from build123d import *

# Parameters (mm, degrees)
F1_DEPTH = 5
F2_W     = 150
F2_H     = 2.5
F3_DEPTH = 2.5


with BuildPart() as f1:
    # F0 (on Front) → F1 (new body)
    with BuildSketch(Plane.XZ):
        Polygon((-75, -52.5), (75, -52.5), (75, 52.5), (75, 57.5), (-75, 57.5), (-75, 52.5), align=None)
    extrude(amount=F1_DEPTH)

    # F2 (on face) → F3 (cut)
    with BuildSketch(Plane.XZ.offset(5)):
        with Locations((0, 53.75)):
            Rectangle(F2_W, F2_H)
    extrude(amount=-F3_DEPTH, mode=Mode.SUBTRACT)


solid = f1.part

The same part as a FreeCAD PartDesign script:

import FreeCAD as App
import Part
import Sketcher

V = App.Vector

doc = App.newDocument("Part")
body = doc.addObject("PartDesign::Body", "Body")

# Sketch on XZ plane
sketch1 = doc.addObject("Sketcher::SketchObject", "Sketch")
body.addObject(sketch1)
sketch1.AttachmentSupport = (doc.XZ_Plane, [""])
sketch1.MapMode = "FlatFace"
sketch1.addGeometry(Part.LineSegment(V(-75, -52.5, 0), V(75, -52.5, 0)), False)
sketch1.addGeometry(Part.LineSegment(V(75, -52.5, 0), V(75, 57.5, 0)), False)
sketch1.addGeometry(Part.LineSegment(V(75, 57.5, 0), V(-75, 57.5, 0)), False)
sketch1.addGeometry(Part.LineSegment(V(-75, 57.5, 0), V(-75, -52.5, 0)), False)
sketch1.addConstraint(Sketcher.Constraint("Coincident", 0, 2, 1, 1))
sketch1.addConstraint(Sketcher.Constraint("Coincident", 1, 2, 2, 1))
sketch1.addConstraint(Sketcher.Constraint("Coincident", 2, 2, 3, 1))
sketch1.addConstraint(Sketcher.Constraint("Coincident", 3, 2, 0, 1))
sketch1.addConstraint(Sketcher.Constraint("Horizontal", 0))
sketch1.addConstraint(Sketcher.Constraint("Vertical", 1))
sketch1.addConstraint(Sketcher.Constraint("Horizontal", 2))
sketch1.addConstraint(Sketcher.Constraint("Vertical", 3))
sketch1.addConstraint(Sketcher.Constraint("DistanceX", 0, 1, 0, 2, 150.0))
sketch1.addConstraint(Sketcher.Constraint("DistanceY", 1, 1, 1, 2, 110.0))
sketch1.addConstraint(Sketcher.Constraint("DistanceX", -1, 1, 0, 2, 75.0))
sketch1.addConstraint(Sketcher.Constraint("DistanceY", 0, 2, -1, 1, 52.5))
pad1 = doc.addObject("PartDesign::Pad", "Pad")
body.addObject(pad1)
pad1.Profile = sketch1
pad1.Length = 5

# Sketch on XZ plane
sketch2 = doc.addObject("Sketcher::SketchObject", "Sketch001")
body.addObject(sketch2)
sketch2.AttachmentSupport = (doc.XZ_Plane, [""])
sketch2.MapMode = "FlatFace"
sketch2.AttachmentOffset = App.Placement(V(0, 0, 5), App.Rotation())
sketch2.addGeometry(Part.LineSegment(V(-75, 55, 0), V(-75, 52.5, 0)), False)
sketch2.addGeometry(Part.LineSegment(V(-75, 52.5, 0), V(75, 52.5, 0)), False)
sketch2.addGeometry(Part.LineSegment(V(75, 52.5, 0), V(75, 55, 0)), False)
sketch2.addGeometry(Part.LineSegment(V(75, 55, 0), V(-75, 55, 0)), False)
sketch2.addConstraint(Sketcher.Constraint("Coincident", 0, 2, 1, 1))
sketch2.addConstraint(Sketcher.Constraint("Coincident", 1, 2, 2, 1))
sketch2.addConstraint(Sketcher.Constraint("Coincident", 2, 2, 3, 1))
sketch2.addConstraint(Sketcher.Constraint("Coincident", 3, 2, 0, 1))
sketch2.addConstraint(Sketcher.Constraint("Vertical", 0))
sketch2.addConstraint(Sketcher.Constraint("Horizontal", 1))
sketch2.addConstraint(Sketcher.Constraint("Vertical", 2))
sketch2.addConstraint(Sketcher.Constraint("Horizontal", 3))
sketch2.addConstraint(Sketcher.Constraint("DistanceX", 1, 1, 1, 2, 150.0))
sketch2.addConstraint(Sketcher.Constraint("DistanceY", 0, 2, 0, 1, 2.5))
sketch2.addConstraint(Sketcher.Constraint("DistanceX", 0, 2, -1, 1, 75.0))
sketch2.addConstraint(Sketcher.Constraint("DistanceY", -1, 1, 2, 2, 55.0))
pocket1 = doc.addObject("PartDesign::Pocket", "Pocket")
body.addObject(pocket1)
pocket1.Profile = sketch2
pocket1.Length = 2.5

doc.recompute()
